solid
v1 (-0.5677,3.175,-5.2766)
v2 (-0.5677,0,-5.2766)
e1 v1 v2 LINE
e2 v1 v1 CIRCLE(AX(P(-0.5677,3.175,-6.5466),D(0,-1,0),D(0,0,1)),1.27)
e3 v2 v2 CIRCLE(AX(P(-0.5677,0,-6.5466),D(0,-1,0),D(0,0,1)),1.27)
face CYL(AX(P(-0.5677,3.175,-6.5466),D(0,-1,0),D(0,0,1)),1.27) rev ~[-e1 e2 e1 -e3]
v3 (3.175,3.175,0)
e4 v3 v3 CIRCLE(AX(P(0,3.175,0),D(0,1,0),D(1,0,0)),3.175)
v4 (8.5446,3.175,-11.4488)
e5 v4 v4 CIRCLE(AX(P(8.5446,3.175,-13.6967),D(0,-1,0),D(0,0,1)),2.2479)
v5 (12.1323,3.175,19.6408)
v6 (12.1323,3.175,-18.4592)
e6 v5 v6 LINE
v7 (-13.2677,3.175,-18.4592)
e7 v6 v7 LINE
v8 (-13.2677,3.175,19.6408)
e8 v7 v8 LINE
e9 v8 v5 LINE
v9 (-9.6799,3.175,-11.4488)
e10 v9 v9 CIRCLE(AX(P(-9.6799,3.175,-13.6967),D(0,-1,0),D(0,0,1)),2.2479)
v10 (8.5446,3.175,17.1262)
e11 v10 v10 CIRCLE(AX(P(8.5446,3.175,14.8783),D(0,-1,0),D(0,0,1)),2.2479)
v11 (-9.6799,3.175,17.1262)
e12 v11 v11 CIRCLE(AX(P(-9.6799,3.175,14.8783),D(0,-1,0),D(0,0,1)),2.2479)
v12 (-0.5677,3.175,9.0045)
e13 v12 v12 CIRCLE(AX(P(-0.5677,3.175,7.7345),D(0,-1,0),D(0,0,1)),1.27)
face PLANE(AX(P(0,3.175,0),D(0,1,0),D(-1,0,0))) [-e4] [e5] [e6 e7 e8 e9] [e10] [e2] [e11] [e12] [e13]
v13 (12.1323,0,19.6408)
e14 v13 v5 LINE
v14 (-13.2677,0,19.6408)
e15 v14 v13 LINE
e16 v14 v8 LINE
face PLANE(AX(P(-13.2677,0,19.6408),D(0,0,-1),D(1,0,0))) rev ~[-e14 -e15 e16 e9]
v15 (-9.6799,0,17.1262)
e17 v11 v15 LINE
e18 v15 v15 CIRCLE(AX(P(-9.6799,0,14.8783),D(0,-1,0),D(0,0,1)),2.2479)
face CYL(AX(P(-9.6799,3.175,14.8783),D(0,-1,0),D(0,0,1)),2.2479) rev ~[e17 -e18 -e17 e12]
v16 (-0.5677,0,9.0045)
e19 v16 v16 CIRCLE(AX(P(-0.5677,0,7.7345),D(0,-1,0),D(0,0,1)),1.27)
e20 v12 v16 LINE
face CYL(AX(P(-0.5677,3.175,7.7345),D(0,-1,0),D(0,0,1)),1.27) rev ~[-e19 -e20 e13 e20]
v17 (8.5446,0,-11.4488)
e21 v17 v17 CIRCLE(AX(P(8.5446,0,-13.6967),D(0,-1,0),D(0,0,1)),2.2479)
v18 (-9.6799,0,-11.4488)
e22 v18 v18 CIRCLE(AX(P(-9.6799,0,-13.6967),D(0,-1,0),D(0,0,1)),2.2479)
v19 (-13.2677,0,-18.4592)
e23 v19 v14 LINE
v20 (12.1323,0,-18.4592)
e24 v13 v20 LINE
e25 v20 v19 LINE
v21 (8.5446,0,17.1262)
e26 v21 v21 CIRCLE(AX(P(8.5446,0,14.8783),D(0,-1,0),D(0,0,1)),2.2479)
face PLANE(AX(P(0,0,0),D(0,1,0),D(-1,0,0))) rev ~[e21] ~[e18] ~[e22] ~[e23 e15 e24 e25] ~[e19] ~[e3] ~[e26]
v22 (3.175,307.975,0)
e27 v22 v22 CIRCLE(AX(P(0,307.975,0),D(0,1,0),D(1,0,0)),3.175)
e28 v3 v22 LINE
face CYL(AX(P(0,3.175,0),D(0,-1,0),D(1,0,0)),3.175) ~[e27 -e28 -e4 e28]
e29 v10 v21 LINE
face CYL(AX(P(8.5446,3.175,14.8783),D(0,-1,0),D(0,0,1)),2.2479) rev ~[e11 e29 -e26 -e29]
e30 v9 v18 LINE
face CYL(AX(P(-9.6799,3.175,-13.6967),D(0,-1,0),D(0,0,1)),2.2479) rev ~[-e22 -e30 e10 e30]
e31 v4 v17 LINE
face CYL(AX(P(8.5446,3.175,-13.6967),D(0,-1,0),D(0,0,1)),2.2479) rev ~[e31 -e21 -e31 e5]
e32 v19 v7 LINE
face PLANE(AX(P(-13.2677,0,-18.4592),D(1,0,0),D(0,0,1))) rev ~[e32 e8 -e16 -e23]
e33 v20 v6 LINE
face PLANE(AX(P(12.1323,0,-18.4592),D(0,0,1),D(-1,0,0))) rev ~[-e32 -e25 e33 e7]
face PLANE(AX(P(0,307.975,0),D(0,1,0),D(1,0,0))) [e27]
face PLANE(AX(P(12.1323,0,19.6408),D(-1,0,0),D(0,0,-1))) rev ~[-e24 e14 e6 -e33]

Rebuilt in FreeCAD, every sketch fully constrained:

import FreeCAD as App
import Part
import Sketcher
Q = App.Units.Quantity

doc = App.newDocument("Part")
body = doc.addObject("PartDesign::Body", "Body")

# Sketch on XZ plane
sketch1 = doc.addObject("Sketcher::SketchObject", "Sketch")
body.addObject(sketch1)
sketch1.AttachmentSupport = (doc.XZ_Plane, [""])
sketch1.MapMode = "FlatFace"
sketch1.addGeometry(Part.LineSegment(App.Vector(-13.2677, -18.4592, 0), App.Vector(-13.2677, 19.6408, 0)), False)
sketch1.addGeometry(Part.LineSegment(App.Vector(-13.2677, 19.6408, 0), App.Vector(12.1323, 19.6408, 0)), False)
sketch1.addGeometry(Part.LineSegment(App.Vector(12.1323, 19.6408, 0), App.Vector(12.1323, -18.4592, 0)), False)
sketch1.addGeometry(Part.LineSegment(App.Vector(12.1323, -18.4592, 0), App.Vector(-13.2677, -18.4592, 0)), False)
sketch1.addConstraint(Sketcher.Constraint("Coincident", 0, 2, 1, 1))
sketch1.addConstraint(Sketcher.Constraint("Coincident", 1, 2, 2, 1))
sketch1.addConstraint(Sketcher.Constraint("Coincident", 2, 2, 3, 1))
sketch1.addConstraint(Sketcher.Constraint("Coincident", 3, 2, 0, 1))
sketch1.addConstraint(Sketcher.Constraint("Vertical", 0))
sketch1.addConstraint(Sketcher.Constraint("Horizontal", 1))
sketch1.addConstraint(Sketcher.Constraint("Vertical", 2))
sketch1.addConstraint(Sketcher.Constraint("Horizontal", 3))
sketch1.addConstraint(Sketcher.Constraint("DistanceX", 1, 1, 1, 2, Q("1 in")))
sketch1.addConstraint(Sketcher.Constraint("DistanceY", 0, 1, 0, 2, Q("1.5 in")))
sketch1.addConstraint(Sketcher.Constraint("DistanceX", 0, 2, -1, 1, Q("13.2677 mm")))
sketch1.addConstraint(Sketcher.Constraint("DistanceY", -1, 1, 0, 2, Q("19.6408 mm")))
pad1 = doc.addObject("PartDesign::Pad", "Pad")
body.addObject(pad1)
pad1.Profile = sketch1
pad1.Length = Q("0.125 in")
pad1.Reversed = True

# Sketch on XZ plane
sketch2 = doc.addObject("Sketcher::SketchObject", "Sketch001")
body.addObject(sketch2)
sketch2.AttachmentSupport = (doc.XZ_Plane, [""])
sketch2.MapMode = "FlatFace"
sketch2.AttachmentOffset = App.Placement(App.Vector(0, 0, -0.125 * 25.4), App.Rotation())
sketch2.addGeometry(Part.Circle(App.Vector(-9.6799, 14.8783, 0), App.Vector(0, 0, 1), 2.2479), False)
sketch2.addConstraint(Sketcher.Constraint("Diameter", 0, Q("0.177 in")))
sketch2.addConstraint(Sketcher.Constraint("DistanceX", 0, 3, -1, 1, Q("0.3811 in")))
sketch2.addConstraint(Sketcher.Constraint("DistanceY", -1, 1, 0, 3, Q("14.8783 mm")))
doc.recompute()
hole = doc.addObject("PartDesign::Hole", "Hole")
body.addObject(hole)
hole.Profile = sketch2
hole.ThreadType = "None"
hole.Diameter = Q("0.177 in")
hole.DepthType = "Dimension"
hole.Depth = Q("0.125 in")
hole.DrillPoint = "Flat"
hole.Reversed = True

# Sketch on XZ plane
sketch3 = doc.addObject("Sketcher::SketchObject", "Sketch002")
body.addObject(sketch3)
sketch3.AttachmentSupport = (doc.XZ_Plane, [""])
sketch3.MapMode = "FlatFace"
sketch3.AttachmentOffset = App.Placement(App.Vector(0, 0, -0.125 * 25.4), App.Rotation())
sketch3.addGeometry(Part.Circle(App.Vector(8.5446, 14.8783, 0), App.Vector(0, 0, 1), 2.2479), False)
sketch3.addConstraint(Sketcher.Constraint("Diameter", 0, Q("0.177 in")))
sketch3.addConstraint(Sketcher.Constraint("DistanceX", -1, 1, 0, 3, Q("0.3364 in")))
sketch3.addConstraint(Sketcher.Constraint("DistanceY", -1, 1, 0, 3, Q("14.8783 mm")))
doc.recompute()
hole2 = doc.addObject("PartDesign::Hole", "Hole001")
body.addObject(hole2)
hole2.Profile = sketch3
hole2.ThreadType = "None"
hole2.Diameter = Q("0.177 in")
hole2.DepthType = "Dimension"
hole2.Depth = Q("0.125 in")
hole2.DrillPoint = "Flat"
hole2.Reversed = True

# Sketch on XZ plane
sketch4 = doc.addObject("Sketcher::SketchObject", "Sketch003")
body.addObject(sketch4)
sketch4.AttachmentSupport = (doc.XZ_Plane, [""])
sketch4.MapMode = "FlatFace"
sketch4.AttachmentOffset = App.Placement(App.Vector(0, 0, -0.125 * 25.4), App.Rotation())
sketch4.addGeometry(Part.Circle(App.Vector(-9.6799, -13.6967, 0), App.Vector(0, 0, 1), 2.2479), False)
sketch4.addConstraint(Sketcher.Constraint("Diameter", 0, Q("0.177 in")))
sketch4.addConstraint(Sketcher.Constraint("DistanceX", 0, 3, -1, 1, Q("0.3811 in")))
sketch4.addConstraint(Sketcher.Constraint("DistanceY", 0, 3, -1, 1, Q("13.6967 mm")))
doc.recompute()
hole3 = doc.addObject("PartDesign::Hole", "Hole002")
body.addObject(hole3)
hole3.Profile = sketch4
hole3.ThreadType = "None"
hole3.Diameter = Q("0.177 in")
hole3.DepthType = "Dimension"
hole3.Depth = Q("0.125 in")
hole3.DrillPoint = "Flat"
hole3.Reversed = True

# Sketch on XZ plane
sketch5 = doc.addObject("Sketcher::SketchObject", "Sketch004")
body.addObject(sketch5)
sketch5.AttachmentSupport = (doc.XZ_Plane, [""])
sketch5.MapMode = "FlatFace"
sketch5.AttachmentOffset = App.Placement(App.Vector(0, 0, -0.125 * 25.4), App.Rotation())
sketch5.addGeometry(Part.Circle(App.Vector(8.5446, -13.6967, 0), App.Vector(0, 0, 1), 2.2479), False)
sketch5.addConstraint(Sketcher.Constraint("Diameter", 0, Q("0.177 in")))
sketch5.addConstraint(Sketcher.Constraint("DistanceX", -1, 1, 0, 3, Q("0.3364 in")))
sketch5.addConstraint(Sketcher.Constraint("DistanceY", 0, 3, -1, 1, Q("13.6967 mm")))
doc.recompute()
hole4 = doc.addObject("PartDesign::Hole", "Hole003")
body.addObject(hole4)
hole4.Profile = sketch5
hole4.ThreadType = "None"
hole4.Diameter = Q("0.177 in")
hole4.DepthType = "Dimension"
hole4.Depth = Q("0.125 in")
hole4.DrillPoint = "Flat"
hole4.Reversed = True

# Sketch on XZ plane
sketch6 = doc.addObject("Sketcher::SketchObject", "Sketch005")
body.addObject(sketch6)
sketch6.AttachmentSupport = (doc.XZ_Plane, [""])
sketch6.MapMode = "FlatFace"
sketch6.AttachmentOffset = App.Placement(App.Vector(0, 0, -0.125 * 25.4), App.Rotation())
sketch6.addGeometry(Part.Circle(App.Vector(-0.5677, -6.5466, 0), App.Vector(0, 0, 1), 1.27), False)
sketch6.addConstraint(Sketcher.Constraint("Diameter", 0, Q("0.1 in")))
sketch6.addConstraint(Sketcher.Constraint("DistanceX", 0, 3, -1, 1, Q("0.5677 mm")))
sketch6.addConstraint(Sketcher.Constraint("DistanceY", 0, 3, -1, 1, Q("6.5466 mm")))
doc.recompute()
hole5 = doc.addObject("PartDesign::Hole", "Hole004")
body.addObject(hole5)
hole5.Profile = sketch6
hole5.ThreadType = "None"
hole5.Diameter = Q("0.1 in")
hole5.DepthType = "Dimension"
hole5.Depth = Q("0.125 in")
hole5.DrillPoint = "Flat"
hole5.Reversed = True

# Sketch on XZ plane
sketch7 = doc.addObject("Sketcher::SketchObject", "Sketch006")
body.addObject(sketch7)
sketch7.AttachmentSupport = (doc.XZ_Plane, [""])
sketch7.MapMode = "FlatFace"
sketch7.AttachmentOffset = App.Placement(App.Vector(0, 0, -0.125 * 25.4), App.Rotation())
sketch7.addGeometry(Part.Circle(App.Vector(-0.5677, 7.7345, 0), App.Vector(0, 0, 1), 1.27), False)
sketch7.addConstraint(Sketcher.Constraint("Diameter", 0, Q("0.1 in")))
sketch7.addConstraint(Sketcher.Constraint("DistanceY", -1, 1, 0, 3, Q("0.3045 in")))
sketch7.addConstraint(Sketcher.Constraint("DistanceX", 0, 3, -1, 1, Q("0.5677 mm")))
doc.recompute()
hole6 = doc.addObject("PartDesign::Hole", "Hole005")
body.addObject(hole6)
hole6.Profile = sketch7
hole6.ThreadType = "None"
hole6.Diameter = Q("0.1 in")
hole6.DepthType = "Dimension"
hole6.Depth = Q("0.125 in")
hole6.DrillPoint = "Flat"
hole6.Reversed = True

# Sketch on XZ plane
sketch8 = doc.addObject("Sketcher::SketchObject", "Sketch007")
body.addObject(sketch8)
sketch8.AttachmentSupport = (doc.XZ_Plane, [""])
sketch8.MapMode = "FlatFace"
sketch8.AttachmentOffset = App.Placement(App.Vector(0, 0, -0.125 * 25.4), App.Rotation())
sketch8.addGeometry(Part.Circle(App.Vector(0, 0, 0), App.Vector(0, 0, 1), 3.175), False)
sketch8.addConstraint(Sketcher.Constraint("Coincident", 0, 3, -1, 1))
sketch8.addConstraint(Sketcher.Constraint("Diameter", 0, Q("0.25 in")))
pad2 = doc.addObject("PartDesign::Pad", "Pad001")
body.addObject(pad2)
pad2.Profile = sketch8
pad2.Length = Q("12 in")
pad2.Reversed = True

doc.recompute()
